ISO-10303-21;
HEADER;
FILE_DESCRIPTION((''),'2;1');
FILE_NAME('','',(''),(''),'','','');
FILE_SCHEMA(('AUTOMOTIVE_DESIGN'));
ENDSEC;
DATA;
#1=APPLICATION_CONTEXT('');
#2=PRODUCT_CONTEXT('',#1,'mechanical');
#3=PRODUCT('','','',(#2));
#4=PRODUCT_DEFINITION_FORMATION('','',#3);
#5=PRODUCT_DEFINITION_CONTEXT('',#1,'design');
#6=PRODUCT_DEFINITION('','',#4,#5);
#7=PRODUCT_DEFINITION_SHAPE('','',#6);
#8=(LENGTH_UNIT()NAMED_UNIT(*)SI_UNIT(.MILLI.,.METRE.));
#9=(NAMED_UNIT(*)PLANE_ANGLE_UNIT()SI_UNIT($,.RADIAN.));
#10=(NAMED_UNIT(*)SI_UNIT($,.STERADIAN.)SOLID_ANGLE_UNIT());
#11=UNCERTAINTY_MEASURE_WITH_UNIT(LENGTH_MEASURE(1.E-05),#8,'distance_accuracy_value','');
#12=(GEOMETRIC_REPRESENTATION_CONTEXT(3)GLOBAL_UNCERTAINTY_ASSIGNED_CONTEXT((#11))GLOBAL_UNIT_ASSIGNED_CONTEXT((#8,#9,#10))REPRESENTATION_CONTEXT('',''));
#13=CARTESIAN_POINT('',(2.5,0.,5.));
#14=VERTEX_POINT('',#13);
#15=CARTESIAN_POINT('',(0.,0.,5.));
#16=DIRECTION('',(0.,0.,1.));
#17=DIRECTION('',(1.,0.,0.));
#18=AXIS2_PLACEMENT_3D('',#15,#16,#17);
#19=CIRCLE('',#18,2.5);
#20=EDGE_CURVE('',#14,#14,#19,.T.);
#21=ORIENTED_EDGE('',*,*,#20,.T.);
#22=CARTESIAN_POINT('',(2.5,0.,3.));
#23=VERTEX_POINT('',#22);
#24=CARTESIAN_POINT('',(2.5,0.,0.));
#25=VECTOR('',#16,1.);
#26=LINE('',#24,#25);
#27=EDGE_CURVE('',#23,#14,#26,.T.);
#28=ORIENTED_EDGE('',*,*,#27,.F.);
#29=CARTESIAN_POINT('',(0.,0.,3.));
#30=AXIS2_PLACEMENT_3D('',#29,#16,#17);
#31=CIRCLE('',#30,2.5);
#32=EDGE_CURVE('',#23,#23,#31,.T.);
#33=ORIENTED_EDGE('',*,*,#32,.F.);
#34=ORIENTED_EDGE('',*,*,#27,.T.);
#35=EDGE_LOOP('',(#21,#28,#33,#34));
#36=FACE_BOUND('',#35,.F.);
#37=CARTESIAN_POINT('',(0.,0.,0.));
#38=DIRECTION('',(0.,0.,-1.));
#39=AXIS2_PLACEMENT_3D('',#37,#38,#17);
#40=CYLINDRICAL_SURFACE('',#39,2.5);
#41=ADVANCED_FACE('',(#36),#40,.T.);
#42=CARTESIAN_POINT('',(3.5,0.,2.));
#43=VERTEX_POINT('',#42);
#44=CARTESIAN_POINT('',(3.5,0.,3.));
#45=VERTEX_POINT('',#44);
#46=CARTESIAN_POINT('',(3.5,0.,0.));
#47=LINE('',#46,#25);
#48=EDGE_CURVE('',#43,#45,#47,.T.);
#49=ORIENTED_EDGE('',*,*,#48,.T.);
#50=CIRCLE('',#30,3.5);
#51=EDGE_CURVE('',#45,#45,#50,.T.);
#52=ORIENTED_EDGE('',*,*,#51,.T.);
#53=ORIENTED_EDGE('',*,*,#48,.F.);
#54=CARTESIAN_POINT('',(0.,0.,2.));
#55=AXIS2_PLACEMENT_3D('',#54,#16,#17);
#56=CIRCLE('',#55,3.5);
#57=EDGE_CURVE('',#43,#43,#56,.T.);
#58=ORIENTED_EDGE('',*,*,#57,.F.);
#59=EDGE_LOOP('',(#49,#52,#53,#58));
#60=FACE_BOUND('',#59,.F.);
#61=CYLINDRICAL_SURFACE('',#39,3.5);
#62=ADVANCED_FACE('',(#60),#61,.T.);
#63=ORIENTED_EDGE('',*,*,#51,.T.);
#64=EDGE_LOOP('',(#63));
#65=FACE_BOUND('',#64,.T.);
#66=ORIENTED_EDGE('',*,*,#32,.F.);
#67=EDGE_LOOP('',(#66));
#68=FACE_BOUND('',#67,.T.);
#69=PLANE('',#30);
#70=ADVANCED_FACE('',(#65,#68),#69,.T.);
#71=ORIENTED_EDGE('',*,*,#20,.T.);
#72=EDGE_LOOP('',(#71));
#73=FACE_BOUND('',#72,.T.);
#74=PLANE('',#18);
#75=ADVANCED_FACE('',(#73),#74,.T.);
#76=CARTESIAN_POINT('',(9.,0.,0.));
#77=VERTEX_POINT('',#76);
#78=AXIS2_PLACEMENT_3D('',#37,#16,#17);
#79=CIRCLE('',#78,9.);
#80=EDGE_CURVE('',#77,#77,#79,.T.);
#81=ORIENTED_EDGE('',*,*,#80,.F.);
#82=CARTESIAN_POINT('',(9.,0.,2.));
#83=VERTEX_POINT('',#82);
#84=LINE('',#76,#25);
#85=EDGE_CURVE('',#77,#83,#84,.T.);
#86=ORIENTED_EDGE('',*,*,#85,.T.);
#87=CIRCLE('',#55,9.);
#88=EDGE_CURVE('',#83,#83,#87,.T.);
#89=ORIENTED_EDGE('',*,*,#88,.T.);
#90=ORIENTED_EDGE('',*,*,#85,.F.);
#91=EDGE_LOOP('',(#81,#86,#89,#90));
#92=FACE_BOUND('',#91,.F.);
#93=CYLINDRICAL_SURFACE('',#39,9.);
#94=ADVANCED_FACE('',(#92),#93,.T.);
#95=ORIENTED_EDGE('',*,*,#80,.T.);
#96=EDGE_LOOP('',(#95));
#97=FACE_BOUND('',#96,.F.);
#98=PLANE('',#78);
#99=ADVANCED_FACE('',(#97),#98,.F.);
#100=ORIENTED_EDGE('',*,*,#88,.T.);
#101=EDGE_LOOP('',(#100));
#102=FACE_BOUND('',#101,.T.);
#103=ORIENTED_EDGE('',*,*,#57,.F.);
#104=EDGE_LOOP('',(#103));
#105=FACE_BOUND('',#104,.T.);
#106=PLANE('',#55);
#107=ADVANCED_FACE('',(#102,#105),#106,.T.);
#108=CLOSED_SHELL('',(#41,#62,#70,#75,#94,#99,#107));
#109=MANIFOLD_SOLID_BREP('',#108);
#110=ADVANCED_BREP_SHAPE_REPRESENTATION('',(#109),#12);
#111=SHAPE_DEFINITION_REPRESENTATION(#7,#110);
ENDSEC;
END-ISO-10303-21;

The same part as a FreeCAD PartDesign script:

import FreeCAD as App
import Part
import Sketcher

V = App.Vector
Q = App.Units.Quantity

doc = App.newDocument("Part")
params = doc.addObject("Spreadsheet::Sheet", "Params")
for row, (alias, value) in enumerate([
    ("sketch1_diameter", "18 mm"),
    ("sketch1_diameter2", "7 mm"),
    ("pad1_length", "2 mm"),
    ("sketch2_diameter", "7 mm"),
    ("sketch2_diameter2", "5 mm"),
    ("pad2_length", "3 mm"),
    ("sketch3_diameter", "5 mm"),
    ("pad3_length", "5 mm"),
], start=1):
    params.set(f"A{row}", alias)
    params.set(f"B{row}", "=" + value)
    params.setAlias(f"B{row}", alias)

body = doc.addObject("PartDesign::Body", "Body")

sketch1 = body.newObject("Sketcher::SketchObject", "Sketch")
sketch1.AttachmentSupport = (doc.getObject("XY_Plane"), [""])
sketch1.MapMode = "FlatFace"
sketch1.addGeometry([
    Part.Circle(V(0, 0, 0), V(0, 0, 1), 9),
    Part.Circle(V(0, 0, 0), V(0, 0, 1), 3.5),
], False)
sketch1.addConstraint([
    Sketcher.Constraint("Coincident", 0, 3, -1, 1),
    Sketcher.Constraint("Coincident", 1, 3, -1, 1),
    Sketcher.Constraint("Diameter", 0, Q("18 mm")),
    Sketcher.Constraint("Diameter", 1, Q("7 mm")),
])
sketch1.setExpression("Constraints[2]", "Params.sketch1_diameter")
sketch1.setExpression("Constraints[3]", "Params.sketch1_diameter2")
pad1 = body.newObject("PartDesign::Pad", "Pad")
pad1.Profile = sketch1
pad1.setExpression("Length", "Params.pad1_length")

sketch2 = body.newObject("Sketcher::SketchObject", "Sketch001")
sketch2.AttachmentSupport = (doc.getObject("XY_Plane"), [""])
sketch2.MapMode = "FlatFace"
sketch2.addGeometry([
    Part.Circle(V(0, 0, 0), V(0, 0, 1), 3.5),
    Part.Circle(V(0, 0, 0), V(0, 0, 1), 2.5),
], False)
sketch2.addConstraint([
    Sketcher.Constraint("Coincident", 0, 3, -1, 1),
    Sketcher.Constraint("Coincident", 1, 3, -1, 1),
    Sketcher.Constraint("Diameter", 0, Q("7 mm")),
    Sketcher.Constraint("Diameter", 1, Q("5 mm")),
])
sketch2.setExpression("Constraints[2]", "Params.sketch2_diameter")
sketch2.setExpression("Constraints[3]", "Params.sketch2_diameter2")
pad2 = body.newObject("PartDesign::Pad", "Pad001")
pad2.Profile = sketch2
pad2.setExpression("Length", "Params.pad2_length")

sketch3 = body.newObject("Sketcher::SketchObject", "Sketch002")
sketch3.AttachmentSupport = (doc.getObject("XY_Plane"), [""])
sketch3.MapMode = "FlatFace"
sketch3.addGeometry(Part.Circle(V(0, 0, 0), V(0, 0, 1), 2.5), False)
sketch3.addConstraint([
    Sketcher.Constraint("Coincident", 0, 3, -1, 1),
    Sketcher.Constraint("Diameter", 0, Q("5 mm")),
])
sketch3.setExpression("Constraints[1]", "Params.sketch3_diameter")
pad3 = body.newObject("PartDesign::Pad", "Pad002")
pad3.Profile = sketch3
pad3.setExpression("Length", "Params.pad3_length")

doc.recompute()
